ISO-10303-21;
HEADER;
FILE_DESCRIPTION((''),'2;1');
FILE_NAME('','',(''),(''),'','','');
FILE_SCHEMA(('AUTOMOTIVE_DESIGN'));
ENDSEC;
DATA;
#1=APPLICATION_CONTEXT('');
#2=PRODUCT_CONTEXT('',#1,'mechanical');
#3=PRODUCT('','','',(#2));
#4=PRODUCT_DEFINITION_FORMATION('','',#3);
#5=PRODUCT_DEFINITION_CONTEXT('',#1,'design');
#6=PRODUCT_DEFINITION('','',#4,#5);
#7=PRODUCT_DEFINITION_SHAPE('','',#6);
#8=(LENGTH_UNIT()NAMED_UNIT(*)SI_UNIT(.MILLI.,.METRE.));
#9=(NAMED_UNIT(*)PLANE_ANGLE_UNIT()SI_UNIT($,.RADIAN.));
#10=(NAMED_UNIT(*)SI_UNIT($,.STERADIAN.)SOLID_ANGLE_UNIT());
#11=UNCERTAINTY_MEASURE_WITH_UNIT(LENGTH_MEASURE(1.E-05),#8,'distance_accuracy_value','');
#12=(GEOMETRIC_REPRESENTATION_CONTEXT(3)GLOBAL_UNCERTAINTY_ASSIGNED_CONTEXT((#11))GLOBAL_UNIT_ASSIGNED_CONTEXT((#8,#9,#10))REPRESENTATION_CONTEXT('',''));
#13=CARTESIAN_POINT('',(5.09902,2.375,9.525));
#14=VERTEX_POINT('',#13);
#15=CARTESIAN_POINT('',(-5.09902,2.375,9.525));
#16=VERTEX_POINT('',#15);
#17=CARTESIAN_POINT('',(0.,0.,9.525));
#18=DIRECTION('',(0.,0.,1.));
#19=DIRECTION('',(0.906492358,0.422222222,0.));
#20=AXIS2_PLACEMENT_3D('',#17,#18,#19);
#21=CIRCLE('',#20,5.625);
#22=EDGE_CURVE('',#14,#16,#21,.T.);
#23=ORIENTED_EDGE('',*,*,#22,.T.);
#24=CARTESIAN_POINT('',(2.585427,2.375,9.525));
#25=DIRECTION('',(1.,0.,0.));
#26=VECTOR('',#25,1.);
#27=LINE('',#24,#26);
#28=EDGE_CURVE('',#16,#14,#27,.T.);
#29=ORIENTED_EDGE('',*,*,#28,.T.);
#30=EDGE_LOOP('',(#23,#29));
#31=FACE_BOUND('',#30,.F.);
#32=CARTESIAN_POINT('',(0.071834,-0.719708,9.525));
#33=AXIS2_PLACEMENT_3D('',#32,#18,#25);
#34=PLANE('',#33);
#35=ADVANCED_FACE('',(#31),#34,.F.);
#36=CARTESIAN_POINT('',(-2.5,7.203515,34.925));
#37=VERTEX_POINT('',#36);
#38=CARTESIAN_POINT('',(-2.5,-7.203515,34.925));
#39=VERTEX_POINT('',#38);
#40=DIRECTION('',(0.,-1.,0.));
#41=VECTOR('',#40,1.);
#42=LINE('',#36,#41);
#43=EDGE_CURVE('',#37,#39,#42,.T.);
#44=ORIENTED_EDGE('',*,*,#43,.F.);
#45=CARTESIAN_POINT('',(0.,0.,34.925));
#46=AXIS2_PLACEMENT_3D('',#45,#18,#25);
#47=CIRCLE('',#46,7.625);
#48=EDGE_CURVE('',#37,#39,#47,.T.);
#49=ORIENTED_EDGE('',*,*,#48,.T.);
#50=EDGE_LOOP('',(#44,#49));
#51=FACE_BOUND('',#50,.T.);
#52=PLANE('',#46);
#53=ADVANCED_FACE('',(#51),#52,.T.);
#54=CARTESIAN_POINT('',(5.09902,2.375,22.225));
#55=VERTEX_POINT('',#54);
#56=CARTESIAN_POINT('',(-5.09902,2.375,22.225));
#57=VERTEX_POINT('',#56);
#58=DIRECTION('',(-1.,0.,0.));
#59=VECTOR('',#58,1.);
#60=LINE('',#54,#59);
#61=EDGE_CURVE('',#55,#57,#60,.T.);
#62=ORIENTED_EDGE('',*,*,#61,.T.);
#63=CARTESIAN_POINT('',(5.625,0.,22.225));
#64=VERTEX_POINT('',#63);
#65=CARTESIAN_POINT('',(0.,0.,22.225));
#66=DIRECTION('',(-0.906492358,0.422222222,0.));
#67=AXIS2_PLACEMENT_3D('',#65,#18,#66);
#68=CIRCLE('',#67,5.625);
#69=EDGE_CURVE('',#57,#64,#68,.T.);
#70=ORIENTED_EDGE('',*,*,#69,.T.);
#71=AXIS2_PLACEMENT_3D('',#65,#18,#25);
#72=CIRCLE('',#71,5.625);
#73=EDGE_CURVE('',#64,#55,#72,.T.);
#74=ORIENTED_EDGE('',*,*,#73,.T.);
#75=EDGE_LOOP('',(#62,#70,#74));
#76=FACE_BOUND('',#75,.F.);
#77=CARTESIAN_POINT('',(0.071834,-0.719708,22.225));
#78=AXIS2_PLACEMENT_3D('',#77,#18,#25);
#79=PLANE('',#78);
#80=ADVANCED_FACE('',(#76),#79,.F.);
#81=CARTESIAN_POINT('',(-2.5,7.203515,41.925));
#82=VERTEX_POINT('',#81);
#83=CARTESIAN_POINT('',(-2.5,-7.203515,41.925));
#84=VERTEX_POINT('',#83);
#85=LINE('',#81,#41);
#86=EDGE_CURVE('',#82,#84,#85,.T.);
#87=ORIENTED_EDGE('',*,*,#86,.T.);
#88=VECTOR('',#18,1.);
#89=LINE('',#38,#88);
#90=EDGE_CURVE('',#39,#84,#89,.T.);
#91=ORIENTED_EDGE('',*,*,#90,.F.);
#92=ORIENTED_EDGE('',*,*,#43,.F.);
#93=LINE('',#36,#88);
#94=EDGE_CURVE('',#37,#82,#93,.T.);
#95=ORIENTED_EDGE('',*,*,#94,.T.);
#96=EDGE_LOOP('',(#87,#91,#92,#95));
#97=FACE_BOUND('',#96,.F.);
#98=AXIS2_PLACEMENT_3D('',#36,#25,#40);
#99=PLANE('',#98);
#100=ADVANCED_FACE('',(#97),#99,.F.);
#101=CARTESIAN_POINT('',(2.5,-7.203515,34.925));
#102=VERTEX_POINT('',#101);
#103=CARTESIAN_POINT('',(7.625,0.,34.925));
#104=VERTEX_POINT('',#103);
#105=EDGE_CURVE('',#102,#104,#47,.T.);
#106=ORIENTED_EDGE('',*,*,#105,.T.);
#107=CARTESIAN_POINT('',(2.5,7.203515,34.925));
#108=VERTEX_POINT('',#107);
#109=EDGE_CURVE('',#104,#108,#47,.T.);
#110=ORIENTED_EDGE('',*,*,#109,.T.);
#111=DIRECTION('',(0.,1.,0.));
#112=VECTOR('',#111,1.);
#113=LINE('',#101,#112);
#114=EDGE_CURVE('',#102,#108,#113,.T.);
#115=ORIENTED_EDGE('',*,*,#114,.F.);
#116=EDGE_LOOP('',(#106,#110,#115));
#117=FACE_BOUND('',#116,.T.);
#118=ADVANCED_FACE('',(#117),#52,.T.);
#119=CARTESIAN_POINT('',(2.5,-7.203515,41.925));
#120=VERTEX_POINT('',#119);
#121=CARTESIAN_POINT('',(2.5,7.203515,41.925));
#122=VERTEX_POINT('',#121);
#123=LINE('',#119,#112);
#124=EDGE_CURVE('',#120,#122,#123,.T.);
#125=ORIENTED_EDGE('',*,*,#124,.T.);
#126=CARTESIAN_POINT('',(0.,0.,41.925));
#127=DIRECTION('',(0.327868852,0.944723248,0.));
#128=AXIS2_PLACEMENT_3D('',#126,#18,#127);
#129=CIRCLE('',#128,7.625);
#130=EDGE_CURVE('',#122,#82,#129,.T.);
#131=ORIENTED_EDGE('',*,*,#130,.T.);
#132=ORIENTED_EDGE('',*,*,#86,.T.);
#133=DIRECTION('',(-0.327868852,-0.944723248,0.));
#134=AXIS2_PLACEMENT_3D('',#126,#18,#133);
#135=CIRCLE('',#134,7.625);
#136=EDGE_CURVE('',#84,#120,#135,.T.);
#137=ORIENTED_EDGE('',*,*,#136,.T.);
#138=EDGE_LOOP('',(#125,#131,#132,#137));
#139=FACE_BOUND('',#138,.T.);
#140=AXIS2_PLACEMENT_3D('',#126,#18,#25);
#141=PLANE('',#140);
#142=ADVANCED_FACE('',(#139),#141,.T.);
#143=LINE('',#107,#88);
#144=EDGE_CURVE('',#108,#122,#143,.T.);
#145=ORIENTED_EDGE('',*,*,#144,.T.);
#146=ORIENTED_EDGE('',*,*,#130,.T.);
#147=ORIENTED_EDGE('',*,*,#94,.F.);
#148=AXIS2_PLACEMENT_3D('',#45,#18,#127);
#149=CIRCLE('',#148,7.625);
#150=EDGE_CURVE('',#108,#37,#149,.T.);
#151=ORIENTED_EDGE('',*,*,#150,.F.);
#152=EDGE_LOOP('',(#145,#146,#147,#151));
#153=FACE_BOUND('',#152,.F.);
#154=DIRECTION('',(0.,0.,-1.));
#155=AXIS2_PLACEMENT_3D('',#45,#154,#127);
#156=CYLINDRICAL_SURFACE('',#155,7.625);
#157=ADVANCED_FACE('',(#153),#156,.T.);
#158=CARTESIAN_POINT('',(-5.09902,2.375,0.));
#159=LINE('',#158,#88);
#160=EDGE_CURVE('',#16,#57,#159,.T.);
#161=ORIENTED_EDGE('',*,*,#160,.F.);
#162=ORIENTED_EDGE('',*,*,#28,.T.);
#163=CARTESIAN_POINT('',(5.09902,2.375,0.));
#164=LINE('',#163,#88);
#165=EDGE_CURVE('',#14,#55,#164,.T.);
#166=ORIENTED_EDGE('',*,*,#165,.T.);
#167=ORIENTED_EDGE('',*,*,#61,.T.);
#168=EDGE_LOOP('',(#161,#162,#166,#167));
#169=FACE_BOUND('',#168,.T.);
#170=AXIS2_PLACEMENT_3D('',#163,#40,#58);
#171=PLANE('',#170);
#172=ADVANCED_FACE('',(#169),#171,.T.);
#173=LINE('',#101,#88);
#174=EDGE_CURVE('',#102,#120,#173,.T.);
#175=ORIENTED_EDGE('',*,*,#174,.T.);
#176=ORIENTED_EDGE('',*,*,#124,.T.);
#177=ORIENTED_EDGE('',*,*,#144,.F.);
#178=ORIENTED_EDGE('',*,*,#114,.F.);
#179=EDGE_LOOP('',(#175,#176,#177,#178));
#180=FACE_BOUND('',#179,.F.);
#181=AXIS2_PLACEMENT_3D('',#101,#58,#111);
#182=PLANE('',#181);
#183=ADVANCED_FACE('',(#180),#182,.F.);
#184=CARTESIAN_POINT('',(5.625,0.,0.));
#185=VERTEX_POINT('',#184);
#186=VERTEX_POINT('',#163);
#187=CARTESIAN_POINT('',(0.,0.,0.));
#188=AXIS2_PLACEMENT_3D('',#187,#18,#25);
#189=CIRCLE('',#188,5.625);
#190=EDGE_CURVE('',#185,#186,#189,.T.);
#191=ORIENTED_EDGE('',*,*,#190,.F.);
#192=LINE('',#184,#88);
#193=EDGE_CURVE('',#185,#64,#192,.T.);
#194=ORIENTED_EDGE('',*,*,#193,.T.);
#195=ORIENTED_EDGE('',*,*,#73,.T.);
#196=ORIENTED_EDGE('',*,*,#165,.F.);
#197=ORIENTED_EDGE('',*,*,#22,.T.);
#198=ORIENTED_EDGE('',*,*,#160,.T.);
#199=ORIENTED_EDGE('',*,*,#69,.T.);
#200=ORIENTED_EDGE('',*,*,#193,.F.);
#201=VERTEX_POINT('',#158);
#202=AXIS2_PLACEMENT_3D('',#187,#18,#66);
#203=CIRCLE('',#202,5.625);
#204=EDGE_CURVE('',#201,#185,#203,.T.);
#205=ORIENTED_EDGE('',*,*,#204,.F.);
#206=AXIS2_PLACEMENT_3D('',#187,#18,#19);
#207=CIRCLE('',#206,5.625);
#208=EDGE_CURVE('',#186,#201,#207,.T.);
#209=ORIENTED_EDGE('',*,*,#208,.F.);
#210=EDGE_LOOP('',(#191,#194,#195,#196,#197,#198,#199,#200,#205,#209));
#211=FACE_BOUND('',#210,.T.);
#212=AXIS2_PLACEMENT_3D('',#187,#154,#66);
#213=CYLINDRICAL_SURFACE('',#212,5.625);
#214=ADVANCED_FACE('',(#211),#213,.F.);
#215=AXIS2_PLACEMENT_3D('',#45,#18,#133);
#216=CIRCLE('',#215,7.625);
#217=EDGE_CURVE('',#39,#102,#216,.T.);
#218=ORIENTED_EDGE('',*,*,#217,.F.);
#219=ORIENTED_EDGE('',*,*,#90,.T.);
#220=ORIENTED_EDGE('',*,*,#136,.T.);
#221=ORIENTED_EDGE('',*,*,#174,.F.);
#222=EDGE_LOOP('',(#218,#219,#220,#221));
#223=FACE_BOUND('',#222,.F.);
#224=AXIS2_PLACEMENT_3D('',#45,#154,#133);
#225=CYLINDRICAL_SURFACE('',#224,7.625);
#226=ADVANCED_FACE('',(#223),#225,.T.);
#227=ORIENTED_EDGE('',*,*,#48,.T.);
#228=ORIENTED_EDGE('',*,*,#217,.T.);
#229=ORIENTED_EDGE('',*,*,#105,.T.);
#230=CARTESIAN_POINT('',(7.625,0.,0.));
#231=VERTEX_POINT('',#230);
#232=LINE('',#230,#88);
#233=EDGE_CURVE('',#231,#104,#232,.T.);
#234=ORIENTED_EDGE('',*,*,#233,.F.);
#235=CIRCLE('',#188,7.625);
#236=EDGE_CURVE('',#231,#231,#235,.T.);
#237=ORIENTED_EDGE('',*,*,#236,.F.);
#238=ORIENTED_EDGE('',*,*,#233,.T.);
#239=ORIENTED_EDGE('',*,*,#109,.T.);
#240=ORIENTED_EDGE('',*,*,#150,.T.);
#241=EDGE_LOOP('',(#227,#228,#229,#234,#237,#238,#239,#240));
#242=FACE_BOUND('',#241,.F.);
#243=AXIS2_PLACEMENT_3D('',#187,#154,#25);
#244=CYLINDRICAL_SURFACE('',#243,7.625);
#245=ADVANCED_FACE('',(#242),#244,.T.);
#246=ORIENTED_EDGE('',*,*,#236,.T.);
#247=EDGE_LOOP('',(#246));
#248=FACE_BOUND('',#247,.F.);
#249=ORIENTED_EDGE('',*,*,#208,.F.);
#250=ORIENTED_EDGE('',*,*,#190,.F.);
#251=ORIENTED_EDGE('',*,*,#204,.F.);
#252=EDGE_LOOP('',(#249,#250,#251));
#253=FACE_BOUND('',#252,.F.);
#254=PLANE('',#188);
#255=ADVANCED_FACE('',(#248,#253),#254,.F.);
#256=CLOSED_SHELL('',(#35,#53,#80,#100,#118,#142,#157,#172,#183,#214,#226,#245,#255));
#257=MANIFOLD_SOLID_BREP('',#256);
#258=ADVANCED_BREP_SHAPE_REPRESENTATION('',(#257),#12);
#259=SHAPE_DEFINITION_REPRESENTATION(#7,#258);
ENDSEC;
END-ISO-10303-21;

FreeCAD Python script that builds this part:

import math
import FreeCAD as App
import Part
import Sketcher
from FreeCAD import Vector
Q = App.Units.Quantity

doc = App.newDocument("Part")
body = doc.addObject("PartDesign::Body", "Body")

# Sketch on XY plane
sketch1 = doc.addObject("Sketcher::SketchObject", "Sketch")
body.addObject(sketch1)
sketch1.AttachmentSupport = (doc.XY_Plane, [""])
sketch1.MapMode = "FlatFace"
sketch1.addGeometry(Part.Circle(Vector(0, 0, 0), Vector(0, 0, 1), 8), False)
sketch1.addConstraint(Sketcher.Constraint("Coincident", 0, 3, -1, 1))
sketch1.addConstraint(Sketcher.Constraint("Diameter", 0, 15.25))
pad1 = doc.addObject("PartDesign::Pad", "Pad")
body.addObject(pad1)
pad1.Profile = sketch1
pad1.Length = Q("1.375 in")

# Sketch on XY plane
sketch2 = doc.addObject("Sketcher::SketchObject", "Sketch001")
body.addObject(sketch2)
sketch2.AttachmentSupport = (doc.XY_Plane, [""])
sketch2.MapMode = "FlatFace"
sketch2.addGeometry(Part.ArcOfCircle(Part.Circle(Vector(0, 0, 0), Vector(0, 0, 1), 5.6), math.radians(155), math.radians(360)), False)
sketch2.addGeometry(Part.ArcOfCircle(Part.Circle(Vector(0, 0, 0), Vector(0, 0, 1), 5.6), math.radians(0), math.radians(25)), False)
sketch2.addGeometry(Part.ArcOfCircle(Part.Circle(Vector(0, 0, 0), Vector(0, 0, 1), 5.6), math.radians(25), math.radians(155)), False)
sketch2.addConstraint(Sketcher.Constraint("Tangent", 0, 2, 1, 1))
sketch2.addConstraint(Sketcher.Constraint("Tangent", 1, 2, 2, 1))
sketch2.addConstraint(Sketcher.Constraint("Tangent", 2, 2, 0, 1))
sketch2.addConstraint(Sketcher.Constraint("Coincident", 0, 3, -1, 1))
sketch2.addConstraint(Sketcher.Constraint("PointOnObject", 0, 2, -1))
sketch2.addConstraint(Sketcher.Constraint("Horizontal", 1, 2, 2, 2))
sketch2.addConstraint(Sketcher.Constraint("Radius", 0, 5.625))
sketch2.addConstraint(Sketcher.Constraint("DistanceY", -1, 1, 1, 2, 2.375))
pocket1 = doc.addObject("PartDesign::Pocket", "Pocket")
body.addObject(pocket1)
pocket1.Profile = sketch2
pocket1.Length = Q("0.375 in")
pocket1.Reversed = True

# Sketch on XY plane
sketch3 = doc.addObject("Sketcher::SketchObject", "Sketch002")
body.addObject(sketch3)
sketch3.AttachmentSupport = (doc.XY_Plane, [""])
sketch3.MapMode = "FlatFace"
sketch3.addGeometry(Part.ArcOfCircle(Part.Circle(Vector(0, 0, 0), Vector(0, 0, 1), 5.6), math.radians(155), math.radians(360)), False)
sketch3.addGeometry(Part.ArcOfCircle(Part.Circle(Vector(0, 0, 0), Vector(0, 0, 1), 5.6), math.radians(0), math.radians(25)), False)
sketch3.addGeometry(Part.LineSegment(Vector(5.1, 2.4, 0), Vector(-5.1, 2.4, 0)), False)
sketch3.addConstraint(Sketcher.Constraint("Tangent", 0, 2, 1, 1))
sketch3.addConstraint(Sketcher.Constraint("Coincident", 1, 2, 2, 1))
sketch3.addConstraint(Sketcher.Constraint("Coincident", 2, 2, 0, 1))
sketch3.addConstraint(Sketcher.Constraint("Horizontal", 2))
sketch3.addConstraint(Sketcher.Constraint("Coincident", 0, 3, -1, 1))
sketch3.addConstraint(Sketcher.Constraint("Equal", 0, 1))
sketch3.addConstraint(Sketcher.Constraint("PointOnObject", 0, 2, -1))
sketch3.addConstraint(Sketcher.Constraint("Radius", 0, 5.625))
sketch3.addConstraint(Sketcher.Constraint("DistanceX", 2, 2, 2, 1, 10.198039))
pocket2 = doc.addObject("PartDesign::Pocket", "Pocket001")
body.addObject(pocket2)
pocket2.Profile = sketch3
pocket2.Length = Q("0.875 in")
pocket2.Reversed = True

# Sketch on XY plane
sketch4 = doc.addObject("Sketcher::SketchObject", "Sketch003")
body.addObject(sketch4)
sketch4.AttachmentSupport = (doc.XY_Plane, [""])
sketch4.MapMode = "FlatFace"
sketch4.AttachmentOffset = App.Placement(Vector(0, 0, 1.375 * 25.4), App.Rotation())
sketch4.addGeometry(Part.LineSegment(Vector(2, -7, 0), Vector(2, 7, 0)), False)
sketch4.addGeometry(Part.ArcOfCircle(Part.Circle(Vector(0, 0, 0), Vector(0, 0, 1), 8), math.radians(71), math.radians(109)), False)
sketch4.addGeometry(Part.LineSegment(Vector(-2, 7, 0), Vector(-2, -7, 0)), False)
sketch4.addGeometry(Part.ArcOfCircle(Part.Circle(Vector(0, 0, 0), Vector(0, 0, 1), 8), math.radians(-109), math.radians(-71)), False)
sketch4.addConstraint(Sketcher.Constraint("Coincident", 0, 2, 1, 1))
sketch4.addConstraint(Sketcher.Constraint("Coincident", 1, 2, 2, 1))
sketch4.addConstraint(Sketcher.Constraint("Coincident", 2, 2, 3, 1))
sketch4.addConstraint(Sketcher.Constraint("Coincident", 3, 2, 0, 1))
sketch4.addConstraint(Sketcher.Constraint("Vertical", 0))
sketch4.addConstraint(Sketcher.Constraint("Vertical", 2))
sketch4.addConstraint(Sketcher.Constraint("Coincident", 1, 3, -1, 1))
sketch4.addConstraint(Sketcher.Constraint("Coincident", 3, 3, -1, 1))
sketch4.addConstraint(Sketcher.Constraint("Equal", 1, 3))
sketch4.addConstraint(Sketcher.Constraint("Horizontal", 0, 2, 1, 2))
sketch4.addConstraint(Sketcher.Constraint("Radius", 1, 7.625))
sketch4.addConstraint(Sketcher.Constraint("DistanceY", 0, 1, 0, 2, 14.40703))
pad2 = doc.addObject("PartDesign::Pad", "Pad001")
body.addObject(pad2)
pad2.Profile = sketch4
pad2.Length = 7

doc.recompute()
